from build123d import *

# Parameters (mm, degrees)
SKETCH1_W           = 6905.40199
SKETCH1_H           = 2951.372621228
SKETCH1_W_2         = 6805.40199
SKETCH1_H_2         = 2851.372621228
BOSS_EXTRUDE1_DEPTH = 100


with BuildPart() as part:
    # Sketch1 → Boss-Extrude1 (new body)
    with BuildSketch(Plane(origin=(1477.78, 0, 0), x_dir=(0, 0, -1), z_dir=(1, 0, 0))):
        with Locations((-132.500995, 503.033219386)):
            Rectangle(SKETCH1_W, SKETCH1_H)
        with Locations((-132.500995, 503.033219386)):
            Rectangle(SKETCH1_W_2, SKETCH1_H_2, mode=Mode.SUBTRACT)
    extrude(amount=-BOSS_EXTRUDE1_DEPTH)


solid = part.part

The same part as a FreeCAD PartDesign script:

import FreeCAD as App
import Part
import Sketcher

V = App.Vector
Q = App.Units.Quantity


def add_polygon(sketch, points):
    """Adds a closed chain of lines whose ends are joined by coincident constraints."""
    first, n = sketch.GeometryCount, len(points)
    for a, b in zip(points, points[1:] + points[:1]):
        sketch.addGeometry(Part.LineSegment(App.Vector(*a, 0), App.Vector(*b, 0)), False)
    for i in range(n):
        sketch.addConstraint(Sketcher.Constraint("Coincident", first + i, 2, first + (i + 1) % n, 1))

doc = App.newDocument("Part")
body = doc.addObject("PartDesign::Body", "Body")

sketch1 = body.newObject("Sketcher::SketchObject", "Sketch")
sketch1.AttachmentSupport = (doc.getObject("YZ_Plane"), [""])
sketch1.MapMode = "FlatFace"
sketch1.AttachmentOffset = App.Placement(V(0, 0, 1477.78), App.Rotation())
add_polygon(sketch1, [(1979, 3585), (-973, 3585), (-973, -3320), (1979, -3320)])
add_polygon(sketch1, [(-923, -3270), (-923, 3535), (1929, 3535), (1929, -3270)])
sketch1.addConstraint(Sketcher.Constraint("Horizontal", 0))
sketch1.addConstraint(Sketcher.Constraint("Vertical", 1))
sketch1.addConstraint(Sketcher.Constraint("Horizontal", 2))
sketch1.addConstraint(Sketcher.Constraint("Vertical", 3))
sketch1.addConstraint(Sketcher.Constraint("Vertical", 4))
sketch1.addConstraint(Sketcher.Constraint("Horizontal", 5))
sketch1.addConstraint(Sketcher.Constraint("Vertical", 6))
sketch1.addConstraint(Sketcher.Constraint("Horizontal", 7))
sketch1.addConstraint(Sketcher.Constraint("DistanceX", 0, 2, 4, 2, Q("50 mm")))
sketch1.addConstraint(Sketcher.Constraint("DistanceY", 4, 2, 0, 2, Q("50 mm")))
sketch1.addConstraint(Sketcher.Constraint("DistanceX", 5, 2, 3, 2, Q("50 mm")))
sketch1.addConstraint(Sketcher.Constraint("DistanceY", 2, 2, 6, 2, Q("50 mm")))
sketch1.addConstraint(Sketcher.Constraint("DistanceY", 1, 2, -1, 1, Q("3320.2 mm")))
sketch1.addConstraint(Sketcher.Constraint("DistanceX", 0, 2, 0, 1, Q("2951.372621 mm")))
sketch1.addConstraint(Sketcher.Constraint("DistanceY", 1, 2, 1, 1, Q("6905.40199 mm")))
sketch1.addConstraint(Sketcher.Constraint("DistanceX", 0, 2, -1, 1, Q("972.653091 mm")))
pad1 = body.newObject("PartDesign::Pad", "Pad")
pad1.Profile = sketch1
pad1.Length = 100
pad1.Reversed = True

doc.recompute()
